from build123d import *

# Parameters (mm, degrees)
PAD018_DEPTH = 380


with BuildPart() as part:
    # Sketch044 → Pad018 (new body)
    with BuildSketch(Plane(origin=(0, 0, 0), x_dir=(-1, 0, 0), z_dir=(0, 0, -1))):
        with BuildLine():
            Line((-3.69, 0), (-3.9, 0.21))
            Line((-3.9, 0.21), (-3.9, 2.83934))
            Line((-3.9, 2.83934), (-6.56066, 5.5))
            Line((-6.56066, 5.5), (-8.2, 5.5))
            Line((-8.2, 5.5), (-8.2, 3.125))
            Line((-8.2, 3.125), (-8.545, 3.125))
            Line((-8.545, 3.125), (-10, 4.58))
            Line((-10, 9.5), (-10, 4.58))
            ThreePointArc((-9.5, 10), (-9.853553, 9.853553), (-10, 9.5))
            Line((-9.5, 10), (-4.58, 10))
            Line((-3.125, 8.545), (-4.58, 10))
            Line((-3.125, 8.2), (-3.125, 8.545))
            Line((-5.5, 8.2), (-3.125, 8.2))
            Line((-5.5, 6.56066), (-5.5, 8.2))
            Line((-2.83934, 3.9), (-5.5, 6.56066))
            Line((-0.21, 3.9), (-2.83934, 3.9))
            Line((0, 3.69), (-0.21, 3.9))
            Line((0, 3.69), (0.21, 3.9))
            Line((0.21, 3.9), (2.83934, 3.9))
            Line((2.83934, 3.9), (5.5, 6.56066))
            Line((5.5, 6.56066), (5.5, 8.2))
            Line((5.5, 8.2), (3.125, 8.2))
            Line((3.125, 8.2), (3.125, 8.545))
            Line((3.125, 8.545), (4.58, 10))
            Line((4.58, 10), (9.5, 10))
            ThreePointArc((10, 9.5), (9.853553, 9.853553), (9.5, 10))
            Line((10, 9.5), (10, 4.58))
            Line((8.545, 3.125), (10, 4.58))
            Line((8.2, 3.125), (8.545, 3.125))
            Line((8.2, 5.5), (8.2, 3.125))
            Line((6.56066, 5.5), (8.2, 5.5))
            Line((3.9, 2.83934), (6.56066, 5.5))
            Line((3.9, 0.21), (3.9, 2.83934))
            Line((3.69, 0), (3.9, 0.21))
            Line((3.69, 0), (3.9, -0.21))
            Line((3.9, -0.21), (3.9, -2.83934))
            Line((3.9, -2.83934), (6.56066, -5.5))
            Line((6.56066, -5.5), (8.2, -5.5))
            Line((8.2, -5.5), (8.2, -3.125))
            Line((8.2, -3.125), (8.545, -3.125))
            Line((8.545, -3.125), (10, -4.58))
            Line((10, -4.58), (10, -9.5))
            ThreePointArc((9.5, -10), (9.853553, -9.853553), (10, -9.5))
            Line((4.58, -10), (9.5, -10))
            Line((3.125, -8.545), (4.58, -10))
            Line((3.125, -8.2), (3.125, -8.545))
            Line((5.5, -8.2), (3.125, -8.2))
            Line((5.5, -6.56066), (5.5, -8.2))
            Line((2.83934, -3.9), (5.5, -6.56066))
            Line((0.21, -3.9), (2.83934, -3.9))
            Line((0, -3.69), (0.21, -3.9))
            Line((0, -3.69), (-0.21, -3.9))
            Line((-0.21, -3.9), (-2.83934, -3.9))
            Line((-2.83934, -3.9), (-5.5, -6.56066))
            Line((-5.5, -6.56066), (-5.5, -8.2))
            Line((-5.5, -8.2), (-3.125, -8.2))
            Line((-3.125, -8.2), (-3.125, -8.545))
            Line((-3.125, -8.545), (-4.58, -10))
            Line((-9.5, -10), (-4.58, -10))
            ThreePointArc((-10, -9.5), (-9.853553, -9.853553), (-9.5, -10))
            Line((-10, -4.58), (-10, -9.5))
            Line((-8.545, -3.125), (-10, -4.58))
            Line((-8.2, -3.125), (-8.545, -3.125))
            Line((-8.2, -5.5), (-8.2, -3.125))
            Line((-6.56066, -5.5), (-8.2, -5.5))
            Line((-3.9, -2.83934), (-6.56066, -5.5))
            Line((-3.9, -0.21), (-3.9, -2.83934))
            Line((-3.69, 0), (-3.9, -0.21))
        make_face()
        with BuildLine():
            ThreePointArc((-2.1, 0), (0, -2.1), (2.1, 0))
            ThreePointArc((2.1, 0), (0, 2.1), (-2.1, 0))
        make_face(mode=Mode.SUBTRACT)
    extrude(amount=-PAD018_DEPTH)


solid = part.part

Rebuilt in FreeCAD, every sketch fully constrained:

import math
import FreeCAD as App
import Part
import Sketcher
Q = App.Units.Quantity

doc = App.newDocument("Part")
params = doc.addObject("Spreadsheet::Sheet", "Params")
for row, (alias, value) in enumerate([
    ("sketch1_diameter", "4.2 mm"),
    ("sketch1_radius", "0.500001 mm"),
    ("sketch1_width", "4.92 mm"),
    ("pad1_length", "380 mm"),
], start=1):
    params.set(f"A{row}", alias)
    params.set(f"B{row}", "=" + value)
    params.setAlias(f"B{row}", alias)

body = doc.addObject("PartDesign::Body", "Body")

sketch1 = body.newObject("Sketcher::SketchObject", "Sketch")
sketch1.AttachmentSupport = (doc.getObject("XY_Plane"), [""])
sketch1.MapMode = "FlatFace"
sketch1.addGeometry(Part.LineSegment(App.Vector(3.9, 0.21, 0), App.Vector(3.69, 0, 0)), False)
sketch1.addGeometry(Part.LineSegment(App.Vector(3.69, 0, 0), App.Vector(3.9, -0.21, 0)), False)
sketch1.addGeometry(Part.LineSegment(App.Vector(3.9, -0.21, 0), App.Vector(3.9, -2.83934, 0)), False)
sketch1.addGeometry(Part.LineSegment(App.Vector(3.9, -2.83934, 0), App.Vector(6.56066, -5.5, 0)), False)
sketch1.addGeometry(Part.LineSegment(App.Vector(6.56066, -5.5, 0), App.Vector(8.2, -5.5, 0)), False)
sketch1.addGeometry(Part.LineSegment(App.Vector(8.2, -5.5, 0), App.Vector(8.2, -3.125, 0)), False)
sketch1.addGeometry(Part.LineSegment(App.Vector(8.2, -3.125, 0), App.Vector(8.545, -3.125, 0)), False)
sketch1.addGeometry(Part.LineSegment(App.Vector(8.545, -3.125, 0), App.Vector(10, -4.58, 0)), False)
sketch1.addGeometry(Part.LineSegment(App.Vector(10, -4.58, 0), App.Vector(10, -9.5, 0)), False)
sketch1.addGeometry(Part.ArcOfCircle(Part.Circle(App.Vector(9.499999, -9.499999, 0), App.Vector(0, 0, 1), 0.500001), math.radians(-89.999847), math.radians(-0.000153)), False)
sketch1.addGeometry(Part.LineSegment(App.Vector(9.5, -10, 0), App.Vector(4.58, -10, 0)), False)
sketch1.addGeometry(Part.LineSegment(App.Vector(4.58, -10, 0), App.Vector(3.125, -8.545, 0)), False)
sketch1.addGeometry(Part.LineSegment(App.Vector(3.125, -8.545, 0), App.Vector(3.125, -8.2, 0)), False)
sketch1.addGeometry(Part.LineSegment(App.Vector(3.125, -8.2, 0), App.Vector(5.5, -8.2, 0)), False)
sketch1.addGeometry(Part.LineSegment(App.Vector(5.5, -8.2, 0), App.Vector(5.5, -6.56066, 0)), False)
sketch1.addGeometry(Part.LineSegment(App.Vector(5.5, -6.56066, 0), App.Vector(2.83934, -3.9, 0)), False)
sketch1.addGeometry(Part.LineSegment(App.Vector(2.83934, -3.9, 0), App.Vector(0.21, -3.9, 0)), False)
sketch1.addGeometry(Part.LineSegment(App.Vector(0.21, -3.9, 0), App.Vector(0, -3.69, 0)), False)
sketch1.addGeometry(Part.LineSegment(App.Vector(0, -3.69, 0), App.Vector(-0.21, -3.9, 0)), False)
sketch1.addGeometry(Part.LineSegment(App.Vector(-0.21, -3.9, 0), App.Vector(-2.83934, -3.9, 0)), False)
sketch1.addGeometry(Part.LineSegment(App.Vector(-2.83934, -3.9, 0), App.Vector(-5.5, -6.56066, 0)), False)
sketch1.addGeometry(Part.LineSegment(App.Vector(-5.5, -6.56066, 0), App.Vector(-5.5, -8.2, 0)), False)
sketch1.addGeometry(Part.LineSegment(App.Vector(-5.5, -8.2, 0), App.Vector(-3.125, -8.2, 0)), False)
sketch1.addGeometry(Part.LineSegment(App.Vector(-3.125, -8.2, 0), App.Vector(-3.125, -8.545, 0)), False)
sketch1.addGeometry(Part.LineSegment(App.Vector(-3.125, -8.545, 0), App.Vector(-4.58, -10, 0)), False)
sketch1.addGeometry(Part.LineSegment(App.Vector(-4.58, -10, 0), App.Vector(-9.5, -10, 0)), False)
sketch1.addGeometry(Part.ArcOfCircle(Part.Circle(App.Vector(-9.499999, -9.499999, 0), App.Vector(0, 0, 1), 0.500001), math.radians(-179.999847), math.radians(-90.000153)), False)
sketch1.addGeometry(Part.LineSegment(App.Vector(-10, -9.5, 0), App.Vector(-10, -4.58, 0)), False)
sketch1.addGeometry(Part.LineSegment(App.Vector(-10, -4.58, 0), App.Vector(-8.545, -3.125, 0)), False)
sketch1.addGeometry(Part.LineSegment(App.Vector(-8.545, -3.125, 0), App.Vector(-8.2, -3.125, 0)), False)
sketch1.addGeometry(Part.LineSegment(App.Vector(-8.2, -3.125, 0), App.Vector(-8.2, -5.5, 0)), False)
sketch1.addGeometry(Part.LineSegment(App.Vector(-8.2, -5.5, 0), App.Vector(-6.56066, -5.5, 0)), False)
sketch1.addGeometry(Part.LineSegment(App.Vector(-6.56066, -5.5, 0), App.Vector(-3.9, -2.83934, 0)), False)
sketch1.addGeometry(Part.LineSegment(App.Vector(-3.9, -2.83934, 0), App.Vector(-3.9, -0.21, 0)), False)
sketch1.addGeometry(Part.LineSegment(App.Vector(-3.9, -0.21, 0), App.Vector(-3.69, 0, 0)), False)
sketch1.addGeometry(Part.LineSegment(App.Vector(-3.69, 0, 0), App.Vector(-3.9, 0.21, 0)), False)
sketch1.addGeometry(Part.LineSegment(App.Vector(-3.9, 0.21, 0), App.Vector(-3.9, 2.83934, 0)), False)
sketch1.addGeometry(Part.LineSegment(App.Vector(-3.9, 2.83934, 0), App.Vector(-6.56066, 5.5, 0)), False)
sketch1.addGeometry(Part.LineSegment(App.Vector(-6.56066, 5.5, 0), App.Vector(-8.2, 5.5, 0)), False)
sketch1.addGeometry(Part.LineSegment(App.Vector(-8.2, 5.5, 0), App.Vector(-8.2, 3.125, 0)), False)
sketch1.addGeometry(Part.LineSegment(App.Vector(-8.2, 3.125, 0), App.Vector(-8.545, 3.125, 0)), False)
sketch1.addGeometry(Part.LineSegment(App.Vector(-8.545, 3.125, 0), App.Vector(-10, 4.58, 0)), False)
sketch1.addGeometry(Part.LineSegment(App.Vector(-10, 4.58, 0), App.Vector(-10, 9.5, 0)), False)
sketch1.addGeometry(Part.ArcOfCircle(Part.Circle(App.Vector(-9.499999, 9.499999, 0), App.Vector(0, 0, 1), 0.500001), math.radians(90.000153), math.radians(179.999847)), False)
sketch1.addGeometry(Part.LineSegment(App.Vector(-9.5, 10, 0), App.Vector(-4.58, 10, 0)), False)
sketch1.addGeometry(Part.LineSegment(App.Vector(-4.58, 10, 0), App.Vector(-3.125, 8.545, 0)), False)
sketch1.addGeometry(Part.LineSegment(App.Vector(-3.125, 8.545, 0), App.Vector(-3.125, 8.2, 0)), False)
sketch1.addGeometry(Part.LineSegment(App.Vector(-3.125, 8.2, 0), App.Vector(-5.5, 8.2, 0)), False)
sketch1.addGeometry(Part.LineSegment(App.Vector(-5.5, 8.2, 0), App.Vector(-5.5, 6.56066, 0)), False)
sketch1.addGeometry(Part.LineSegment(App.Vector(-5.5, 6.56066, 0), App.Vector(-2.83934, 3.9, 0)), False)
sketch1.addGeometry(Part.LineSegment(App.Vector(-2.83934, 3.9, 0), App.Vector(-0.21, 3.9, 0)), False)
sketch1.addGeometry(Part.LineSegment(App.Vector(-0.21, 3.9, 0), App.Vector(0, 3.69, 0)), False)
sketch1.addGeometry(Part.LineSegment(App.Vector(0, 3.69, 0), App.Vector(0.21, 3.9, 0)), False)
sketch1.addGeometry(Part.LineSegment(App.Vector(0.21, 3.9, 0), App.Vector(2.83934, 3.9, 0)), False)
sketch1.addGeometry(Part.LineSegment(App.Vector(2.83934, 3.9, 0), App.Vector(5.5, 6.56066, 0)), False)
sketch1.addGeometry(Part.LineSegment(App.Vector(5.5, 6.56066, 0), App.Vector(5.5, 8.2, 0)), False)
sketch1.addGeometry(Part.LineSegment(App.Vector(5.5, 8.2, 0), App.Vector(3.125, 8.2, 0)), False)
sketch1.addGeometry(Part.LineSegment(App.Vector(3.125, 8.2, 0), App.Vector(3.125, 8.545, 0)), False)
sketch1.addGeometry(Part.LineSegment(App.Vector(3.125, 8.545, 0), App.Vector(4.58, 10, 0)), False)
sketch1.addGeometry(Part.LineSegment(App.Vector(4.58, 10, 0), App.Vector(9.5, 10, 0)), False)
sketch1.addGeometry(Part.ArcOfCircle(Part.Circle(App.Vector(9.499999, 9.499999, 0), App.Vector(0, 0, 1), 0.500001), math.radians(0.000153), math.radians(89.999847)), False)
sketch1.addGeometry(Part.LineSegment(App.Vector(10, 9.5, 0), App.Vector(10, 4.58, 0)), False)
sketch1.addGeometry(Part.LineSegment(App.Vector(10, 4.58, 0), App.Vector(8.545, 3.125, 0)), False)
sketch1.addGeometry(Part.LineSegment(App.Vector(8.545, 3.125, 0), App.Vector(8.2, 3.125, 0)), False)
sketch1.addGeometry(Part.LineSegment(App.Vector(8.2, 3.125, 0), App.Vector(8.2, 5.5, 0)), False)
sketch1.addGeometry(Part.LineSegment(App.Vector(8.2, 5.5, 0), App.Vector(6.56066, 5.5, 0)), False)
sketch1.addGeometry(Part.LineSegment(App.Vector(6.56066, 5.5, 0), App.Vector(3.9, 2.83934, 0)), False)
sketch1.addGeometry(Part.LineSegment(App.Vector(3.9, 2.83934, 0), App.Vector(3.9, 0.21, 0)), False)
sketch1.addGeometry(Part.Circle(App.Vector(0, 0, 0), App.Vector(0, 0, 1), 2.1), False)
sketch1.addConstraint(Sketcher.Constraint("Coincident", 0, 2, 1, 1))
sketch1.addConstraint(Sketcher.Constraint("Coincident", 1, 2, 2, 1))
sketch1.addConstraint(Sketcher.Constraint("Coincident", 2, 2, 3, 1))
sketch1.addConstraint(Sketcher.Constraint("Coincident", 3, 2, 4, 1))
sketch1.addConstraint(Sketcher.Constraint("Coincident", 4, 2, 5, 1))
sketch1.addConstraint(Sketcher.Constraint("Coincident", 5, 2, 6, 1))
sketch1.addConstraint(Sketcher.Constraint("Coincident", 6, 2, 7, 1))
sketch1.addConstraint(Sketcher.Constraint("Coincident", 7, 2, 8, 1))
sketch1.addConstraint(Sketcher.Constraint("Coincident", 8, 2, 9, 2))
sketch1.addConstraint(Sketcher.Constraint("Coincident", 9, 1, 10, 1))
sketch1.addConstraint(Sketcher.Constraint("Coincident", 10, 2, 11, 1))
sketch1.addConstraint(Sketcher.Constraint("Coincident", 11, 2, 12, 1))
sketch1.addConstraint(Sketcher.Constraint("Coincident", 12, 2, 13, 1))
sketch1.addConstraint(Sketcher.Constraint("Coincident", 13, 2, 14, 1))
sketch1.addConstraint(Sketcher.Constraint("Coincident", 14, 2, 15, 1))
sketch1.addConstraint(Sketcher.Constraint("Coincident", 15, 2, 16, 1))
sketch1.addConstraint(Sketcher.Constraint("Coincident", 16, 2, 17, 1))
sketch1.addConstraint(Sketcher.Constraint("Coincident", 17, 2, 18, 1))
sketch1.addConstraint(Sketcher.Constraint("Coincident", 18, 2, 19, 1))
sketch1.addConstraint(Sketcher.Constraint("Coincident", 19, 2, 20, 1))
sketch1.addConstraint(Sketcher.Constraint("Coincident", 20, 2, 21, 1))
sketch1.addConstraint(Sketcher.Constraint("Coincident", 21, 2, 22, 1))
sketch1.addConstraint(Sketcher.Constraint("Coincident", 22, 2, 23, 1))
sketch1.addConstraint(Sketcher.Constraint("Coincident", 23, 2, 24, 1))
sketch1.addConstraint(Sketcher.Constraint("Coincident", 24, 2, 25, 1))
sketch1.addConstraint(Sketcher.Constraint("Coincident", 25, 2, 26, 2))
sketch1.addConstraint(Sketcher.Constraint("Coincident", 26, 1, 27, 1))
sketch1.addConstraint(Sketcher.Constraint("Coincident", 27, 2, 28, 1))
sketch1.addConstraint(Sketcher.Constraint("Coincident", 28, 2, 29, 1))
sketch1.addConstraint(Sketcher.Constraint("Coincident", 29, 2, 30, 1))
sketch1.addConstraint(Sketcher.Constraint("Coincident", 30, 2, 31, 1))
sketch1.addConstraint(Sketcher.Constraint("Coincident", 31, 2, 32, 1))
sketch1.addConstraint(Sketcher.Constraint("Coincident", 32, 2, 33, 1))
sketch1.addConstraint(Sketcher.Constraint("Coincident", 33, 2, 34, 1))
sketch1.addConstraint(Sketcher.Constraint("Coincident", 34, 2, 35, 1))
sketch1.addConstraint(Sketcher.Constraint("Coincident", 35, 2, 36, 1))
sketch1.addConstraint(Sketcher.Constraint("Coincident", 36, 2, 37, 1))
sketch1.addConstraint(Sketcher.Constraint("Coincident", 37, 2, 38, 1))
sketch1.addConstraint(Sketcher.Constraint("Coincident", 38, 2, 39, 1))
sketch1.addConstraint(Sketcher.Constraint("Coincident", 39, 2, 40, 1))
sketch1.addConstraint(Sketcher.Constraint("Coincident", 40, 2, 41, 1))
sketch1.addConstraint(Sketcher.Constraint("Coincident", 41, 2, 42, 1))
sketch1.addConstraint(Sketcher.Constraint("Coincident", 42, 2, 43, 2))
sketch1.addConstraint(Sketcher.Constraint("Coincident", 43, 1, 44, 1))
sketch1.addConstraint(Sketcher.Constraint("Coincident", 44, 2, 45, 1))
sketch1.addConstraint(Sketcher.Constraint("Coincident", 45, 2, 46, 1))
sketch1.addConstraint(Sketcher.Constraint("Coincident", 46, 2, 47, 1))
sketch1.addConstraint(Sketcher.Constraint("Coincident", 47, 2, 48, 1))
sketch1.addConstraint(Sketcher.Constraint("Coincident", 48, 2, 49, 1))
sketch1.addConstraint(Sketcher.Constraint("Coincident", 49, 2, 50, 1))
sketch1.addConstraint(Sketcher.Constraint("Coincident", 50, 2, 51, 1))
sketch1.addConstraint(Sketcher.Constraint("Coincident", 51, 2, 52, 1))
sketch1.addConstraint(Sketcher.Constraint("Coincident", 52, 2, 53, 1))
sketch1.addConstraint(Sketcher.Constraint("Coincident", 53, 2, 54, 1))
sketch1.addConstraint(Sketcher.Constraint("Coincident", 54, 2, 55, 1))
sketch1.addConstraint(Sketcher.Constraint("Coincident", 55, 2, 56, 1))
sketch1.addConstraint(Sketcher.Constraint("Coincident", 56, 2, 57, 1))
sketch1.addConstraint(Sketcher.Constraint("Coincident", 57, 2, 58, 1))
sketch1.addConstraint(Sketcher.Constraint("Coincident", 58, 2, 59, 1))
sketch1.addConstraint(Sketcher.Constraint("Coincident", 59, 2, 60, 2))
sketch1.addConstraint(Sketcher.Constraint("Coincident", 60, 1, 61, 1))
sketch1.addConstraint(Sketcher.Constraint("Coincident", 61, 2, 62, 1))
sketch1.addConstraint(Sketcher.Constraint("Coincident", 62, 2, 63, 1))
sketch1.addConstraint(Sketcher.Constraint("Coincident", 63, 2, 64, 1))
sketch1.addConstraint(Sketcher.Constraint("Coincident", 64, 2, 65, 1))
sketch1.addConstraint(Sketcher.Constraint("Coincident", 65, 2, 66, 1))
sketch1.addConstraint(Sketcher.Constraint("Coincident", 66, 2, 67, 1))
sketch1.addConstraint(Sketcher.Constraint("Coincident", 67, 2, 0, 1))
sketch1.addConstraint(Sketcher.Constraint("Vertical", 2))
sketch1.addConstraint(Sketcher.Constraint("Horizontal", 4))
sketch1.addConstraint(Sketcher.Constraint("Vertical", 5))
sketch1.addConstraint(Sketcher.Constraint("Horizontal", 6))
sketch1.addConstraint(Sketcher.Constraint("Vertical", 8))
sketch1.addConstraint(Sketcher.Constraint("Horizontal", 10))
sketch1.addConstraint(Sketcher.Constraint("Vertical", 12))
sketch1.addConstraint(Sketcher.Constraint("Horizontal", 13))
sketch1.addConstraint(Sketcher.Constraint("Vertical", 14))
sketch1.addConstraint(Sketcher.Constraint("Horizontal", 16))
sketch1.addConstraint(Sketcher.Constraint("Horizontal", 19))
sketch1.addConstraint(Sketcher.Constraint("Vertical", 21))
sketch1.addConstraint(Sketcher.Constraint("Horizontal", 22))
sketch1.addConstraint(Sketcher.Constraint("Vertical", 23))
sketch1.addConstraint(Sketcher.Constraint("Horizontal", 25))
sketch1.addConstraint(Sketcher.Constraint("Vertical", 27))
sketch1.addConstraint(Sketcher.Constraint("Horizontal", 29))
sketch1.addConstraint(Sketcher.Constraint("Vertical", 30))
sketch1.addConstraint(Sketcher.Constraint("Horizontal", 31))
sketch1.addConstraint(Sketcher.Constraint("Vertical", 33))
sketch1.addConstraint(Sketcher.Constraint("Vertical", 36))
sketch1.addConstraint(Sketcher.Constraint("Horizontal", 38))
sketch1.addConstraint(Sketcher.Constraint("Vertical", 39))
sketch1.addConstraint(Sketcher.Constraint("Horizontal", 40))
sketch1.addConstraint(Sketcher.Constraint("Vertical", 42))
sketch1.addConstraint(Sketcher.Constraint("Horizontal", 44))
sketch1.addConstraint(Sketcher.Constraint("Vertical", 46))
sketch1.addConstraint(Sketcher.Constraint("Horizontal", 47))
sketch1.addConstraint(Sketcher.Constraint("Vertical", 48))
sketch1.addConstraint(Sketcher.Constraint("Horizontal", 50))
sketch1.addConstraint(Sketcher.Constraint("Horizontal", 53))
sketch1.addConstraint(Sketcher.Constraint("Vertical", 55))
sketch1.addConstraint(Sketcher.Constraint("Horizontal", 56))
sketch1.addConstraint(Sketcher.Constraint("Vertical", 57))
sketch1.addConstraint(Sketcher.Constraint("Horizontal", 59))
sketch1.addConstraint(Sketcher.Constraint("Vertical", 61))
sketch1.addConstraint(Sketcher.Constraint("Horizontal", 63))
sketch1.addConstraint(Sketcher.Constraint("Vertical", 64))
sketch1.addConstraint(Sketcher.Constraint("Horizontal", 65))
sketch1.addConstraint(Sketcher.Constraint("Vertical", 67))
sketch1.addConstraint(Sketcher.Constraint("Coincident", 68, 3, -1, 1))
sketch1.addConstraint(Sketcher.Constraint("Equal", 9, 26))
sketch1.addConstraint(Sketcher.Constraint("Equal", 26, 43))
sketch1.addConstraint(Sketcher.Constraint("Equal", 43, 60))
sketch1.addConstraint(Sketcher.Constraint("Symmetric", 9, 3, 43, 3, -1, 1))
sketch1.addConstraint(Sketcher.Constraint("Symmetric", 26, 3, 60, 3, -1, 1))
sketch1.addConstraint(Sketcher.Constraint("Symmetric", 0, 2, 34, 2, -1, 1))
sketch1.addConstraint(Sketcher.Constraint("Symmetric", 1, 2, 35, 2, -1, 1))
sketch1.addConstraint(Sketcher.Constraint("Symmetric", 3, 2, 37, 2, -1, 1))
sketch1.addConstraint(Sketcher.Constraint("Symmetric", 5, 2, 39, 2, -1, 1))
sketch1.addConstraint(Sketcher.Constraint("Symmetric", 11, 2, 45, 2, -1, 1))
sketch1.addConstraint(Sketcher.Constraint("Symmetric", 13, 2, 47, 2, -1, 1))
sketch1.addConstraint(Sketcher.Constraint("Symmetric", 15, 2, 49, 2, -1, 1))
sketch1.addConstraint(Sketcher.Constraint("Symmetric", 17, 2, 51, 2, -1, 1))
sketch1.addConstraint(Sketcher.Constraint("Symmetric", 18, 2, 52, 2, -1, 1))
sketch1.addConstraint(Sketcher.Constraint("Symmetric", 20, 2, 54, 2, -1, 1))
sketch1.addConstraint(Sketcher.Constraint("Symmetric", 22, 2, 56, 2, -1, 1))
sketch1.addConstraint(Sketcher.Constraint("Symmetric", 28, 2, 62, 2, -1, 1))
sketch1.addConstraint(Sketcher.Constraint("Symmetric", 30, 2, 64, 2, -1, 1))
sketch1.addConstraint(Sketcher.Constraint("Symmetric", 32, 2, 66, 2, -1, 1))
sketch1.addConstraint(Sketcher.Constraint("Symmetric", 9, 3, 26, 3, -2))
sketch1.addConstraint(Sketcher.Constraint("Symmetric", 16, 2, 18, 2, -2))
sketch1.addConstraint(Sketcher.Constraint("Symmetric", 14, 2, 20, 2, -2))
sketch1.addConstraint(Sketcher.Constraint("Symmetric", 12, 2, 22, 2, -2))
sketch1.addConstraint(Sketcher.Constraint("Symmetric", 6, 2, 28, 2, -2))
sketch1.addConstraint(Sketcher.Constraint("Symmetric", 4, 2, 30, 2, -2))
sketch1.addConstraint(Sketcher.Constraint("Symmetric", 2, 2, 32, 2, -2))
sketch1.addConstraint(Sketcher.Constraint("PointOnObject", 0, 2, -1))
sketch1.addConstraint(Sketcher.Constraint("PointOnObject", 17, 2, -2))
sketch1.addConstraint(Sketcher.Constraint("Perpendicular", 0, 1))
sketch1.addConstraint(Sketcher.Constraint("Parallel", 1, 3))
sketch1.addConstraint(Sketcher.Constraint("Parallel", 3, 7))
sketch1.addConstraint(Sketcher.Constraint("Parallel", 7, 11))
sketch1.addConstraint(Sketcher.Constraint("Parallel", 11, 15))
sketch1.addConstraint(Sketcher.Constraint("Parallel", 15, 17))
sketch1.addConstraint(Sketcher.Constraint("Perpendicular", 17, 18))
sketch1.addConstraint(Sketcher.Constraint("Parallel", 18, 20))
sketch1.addConstraint(Sketcher.Constraint("Parallel", 20, 24))
sketch1.addConstraint(Sketcher.Constraint("Parallel", 24, 28))
sketch1.addConstraint(Sketcher.Constraint("Parallel", 28, 32))
sketch1.addConstraint(Sketcher.Constraint("Parallel", 32, 34))
sketch1.addConstraint(Sketcher.Constraint("Parallel", 35, 37))
sketch1.addConstraint(Sketcher.Constraint("Parallel", 37, 41))
sketch1.addConstraint(Sketcher.Constraint("Parallel", 41, 45))
sketch1.addConstraint(Sketcher.Constraint("Parallel", 45, 49))
sketch1.addConstraint(Sketcher.Constraint("Parallel", 49, 51))
sketch1.addConstraint(Sketcher.Constraint("Parallel", 52, 54))
sketch1.addConstraint(Sketcher.Constraint("Parallel", 54, 58))
sketch1.addConstraint(Sketcher.Constraint("Parallel", 58, 62))
sketch1.addConstraint(Sketcher.Constraint("Parallel", 62, 66))
sketch1.addConstraint(Sketcher.Constraint("Horizontal", 26, 3, 8, 2))
sketch1.addConstraint(Sketcher.Constraint("Horizontal", 11, 2, 23, 2))
sketch1.addConstraint(Sketcher.Constraint("Horizontal", 8, 2, 26, 1))
sketch1.addConstraint(Sketcher.Constraint("Horizontal", 60, 3, 42, 2))
sketch1.addConstraint(Sketcher.Constraint("Horizontal", 45, 2, 57, 2))
sketch1.addConstraint(Sketcher.Constraint("Horizontal", 42, 2, 60, 1))
sketch1.addConstraint(Sketcher.Constraint("Horizontal", 41, 2, 61, 2))
sketch1.addConstraint(Sketcher.Constraint("Vertical", 60, 3, 9, 1))
sketch1.addConstraint(Sketcher.Constraint("Vertical", 43, 3, 25, 2))
sketch1.addConstraint(Sketcher.Constraint("Vertical", 25, 2, 43, 1))
sketch1.addConstraint(Sketcher.Constraint("Vertical", 9, 1, 59, 2))
sketch1.addConstraint(Sketcher.Constraint("Equal", 53, 2))
sketch1.addConstraint(Sketcher.Constraint("Equal", 56, 5))
sketch1.addConstraint(Sketcher.Constraint("Equal", 59, 8))
sketch1.addConstraint(Sketcher.Constraint("Equal", 63, 12))
sketch1.addConstraint(Sketcher.Constraint("Equal", 65, 14))
sketch1.addConstraint(Sketcher.Constraint("Equal", 7, 11))
sketch1.addConstraint(Sketcher.Constraint("Equal", 3, 15))
sketch1.addConstraint(Sketcher.Constraint("Equal", 1, 17))
sketch1.addConstraint(Sketcher.Constraint("Diameter", 68, Q("4.2 mm")))
sketch1.addConstraint(Sketcher.Constraint("Radius", 9, Q("0.500001 mm")))
sketch1.addConstraint(Sketcher.Constraint("DistanceX", -1, 1, 7, 2, Q("10 mm")))
sketch1.addConstraint(Sketcher.Constraint("DistanceX", 10, 2, 10, 1, Q("4.92 mm")))
sketch1.addConstraint(Sketcher.Constraint("DistanceX", -1, 1, 1, 2, Q("3.9 mm")))
sketch1.addConstraint(Sketcher.Constraint("DistanceY", 3, 2, -1, 1, Q("5.5 mm")))
sketch1.addConstraint(Sketcher.Constraint("DistanceX", -1, 1, 4, 2, Q("8.2 mm")))
sketch1.addConstraint(Sketcher.Constraint("DistanceX", 6, 1, 6, 2, Q("0.345 mm")))
sketch1.addConstraint(Sketcher.Constraint("DistanceX", -1, 1, 0, 2, Q("3.69 mm")))
sketch1.addConstraint(Sketcher.Constraint("DistanceX", 4, 1, 4, 2, Q("1.63934 mm")))
sketch1.setExpression("Constraints[177]", "Params.sketch1_diameter")
sketch1.setExpression("Constraints[178]", "Params.sketch1_radius")
sketch1.setExpression("Constraints[180]", "Params.sketch1_width")
pad1 = body.newObject("PartDesign::Pad", "Pad")
pad1.Profile = sketch1
pad1.setExpression("Length", "Params.pad1_length")

doc.recompute()
